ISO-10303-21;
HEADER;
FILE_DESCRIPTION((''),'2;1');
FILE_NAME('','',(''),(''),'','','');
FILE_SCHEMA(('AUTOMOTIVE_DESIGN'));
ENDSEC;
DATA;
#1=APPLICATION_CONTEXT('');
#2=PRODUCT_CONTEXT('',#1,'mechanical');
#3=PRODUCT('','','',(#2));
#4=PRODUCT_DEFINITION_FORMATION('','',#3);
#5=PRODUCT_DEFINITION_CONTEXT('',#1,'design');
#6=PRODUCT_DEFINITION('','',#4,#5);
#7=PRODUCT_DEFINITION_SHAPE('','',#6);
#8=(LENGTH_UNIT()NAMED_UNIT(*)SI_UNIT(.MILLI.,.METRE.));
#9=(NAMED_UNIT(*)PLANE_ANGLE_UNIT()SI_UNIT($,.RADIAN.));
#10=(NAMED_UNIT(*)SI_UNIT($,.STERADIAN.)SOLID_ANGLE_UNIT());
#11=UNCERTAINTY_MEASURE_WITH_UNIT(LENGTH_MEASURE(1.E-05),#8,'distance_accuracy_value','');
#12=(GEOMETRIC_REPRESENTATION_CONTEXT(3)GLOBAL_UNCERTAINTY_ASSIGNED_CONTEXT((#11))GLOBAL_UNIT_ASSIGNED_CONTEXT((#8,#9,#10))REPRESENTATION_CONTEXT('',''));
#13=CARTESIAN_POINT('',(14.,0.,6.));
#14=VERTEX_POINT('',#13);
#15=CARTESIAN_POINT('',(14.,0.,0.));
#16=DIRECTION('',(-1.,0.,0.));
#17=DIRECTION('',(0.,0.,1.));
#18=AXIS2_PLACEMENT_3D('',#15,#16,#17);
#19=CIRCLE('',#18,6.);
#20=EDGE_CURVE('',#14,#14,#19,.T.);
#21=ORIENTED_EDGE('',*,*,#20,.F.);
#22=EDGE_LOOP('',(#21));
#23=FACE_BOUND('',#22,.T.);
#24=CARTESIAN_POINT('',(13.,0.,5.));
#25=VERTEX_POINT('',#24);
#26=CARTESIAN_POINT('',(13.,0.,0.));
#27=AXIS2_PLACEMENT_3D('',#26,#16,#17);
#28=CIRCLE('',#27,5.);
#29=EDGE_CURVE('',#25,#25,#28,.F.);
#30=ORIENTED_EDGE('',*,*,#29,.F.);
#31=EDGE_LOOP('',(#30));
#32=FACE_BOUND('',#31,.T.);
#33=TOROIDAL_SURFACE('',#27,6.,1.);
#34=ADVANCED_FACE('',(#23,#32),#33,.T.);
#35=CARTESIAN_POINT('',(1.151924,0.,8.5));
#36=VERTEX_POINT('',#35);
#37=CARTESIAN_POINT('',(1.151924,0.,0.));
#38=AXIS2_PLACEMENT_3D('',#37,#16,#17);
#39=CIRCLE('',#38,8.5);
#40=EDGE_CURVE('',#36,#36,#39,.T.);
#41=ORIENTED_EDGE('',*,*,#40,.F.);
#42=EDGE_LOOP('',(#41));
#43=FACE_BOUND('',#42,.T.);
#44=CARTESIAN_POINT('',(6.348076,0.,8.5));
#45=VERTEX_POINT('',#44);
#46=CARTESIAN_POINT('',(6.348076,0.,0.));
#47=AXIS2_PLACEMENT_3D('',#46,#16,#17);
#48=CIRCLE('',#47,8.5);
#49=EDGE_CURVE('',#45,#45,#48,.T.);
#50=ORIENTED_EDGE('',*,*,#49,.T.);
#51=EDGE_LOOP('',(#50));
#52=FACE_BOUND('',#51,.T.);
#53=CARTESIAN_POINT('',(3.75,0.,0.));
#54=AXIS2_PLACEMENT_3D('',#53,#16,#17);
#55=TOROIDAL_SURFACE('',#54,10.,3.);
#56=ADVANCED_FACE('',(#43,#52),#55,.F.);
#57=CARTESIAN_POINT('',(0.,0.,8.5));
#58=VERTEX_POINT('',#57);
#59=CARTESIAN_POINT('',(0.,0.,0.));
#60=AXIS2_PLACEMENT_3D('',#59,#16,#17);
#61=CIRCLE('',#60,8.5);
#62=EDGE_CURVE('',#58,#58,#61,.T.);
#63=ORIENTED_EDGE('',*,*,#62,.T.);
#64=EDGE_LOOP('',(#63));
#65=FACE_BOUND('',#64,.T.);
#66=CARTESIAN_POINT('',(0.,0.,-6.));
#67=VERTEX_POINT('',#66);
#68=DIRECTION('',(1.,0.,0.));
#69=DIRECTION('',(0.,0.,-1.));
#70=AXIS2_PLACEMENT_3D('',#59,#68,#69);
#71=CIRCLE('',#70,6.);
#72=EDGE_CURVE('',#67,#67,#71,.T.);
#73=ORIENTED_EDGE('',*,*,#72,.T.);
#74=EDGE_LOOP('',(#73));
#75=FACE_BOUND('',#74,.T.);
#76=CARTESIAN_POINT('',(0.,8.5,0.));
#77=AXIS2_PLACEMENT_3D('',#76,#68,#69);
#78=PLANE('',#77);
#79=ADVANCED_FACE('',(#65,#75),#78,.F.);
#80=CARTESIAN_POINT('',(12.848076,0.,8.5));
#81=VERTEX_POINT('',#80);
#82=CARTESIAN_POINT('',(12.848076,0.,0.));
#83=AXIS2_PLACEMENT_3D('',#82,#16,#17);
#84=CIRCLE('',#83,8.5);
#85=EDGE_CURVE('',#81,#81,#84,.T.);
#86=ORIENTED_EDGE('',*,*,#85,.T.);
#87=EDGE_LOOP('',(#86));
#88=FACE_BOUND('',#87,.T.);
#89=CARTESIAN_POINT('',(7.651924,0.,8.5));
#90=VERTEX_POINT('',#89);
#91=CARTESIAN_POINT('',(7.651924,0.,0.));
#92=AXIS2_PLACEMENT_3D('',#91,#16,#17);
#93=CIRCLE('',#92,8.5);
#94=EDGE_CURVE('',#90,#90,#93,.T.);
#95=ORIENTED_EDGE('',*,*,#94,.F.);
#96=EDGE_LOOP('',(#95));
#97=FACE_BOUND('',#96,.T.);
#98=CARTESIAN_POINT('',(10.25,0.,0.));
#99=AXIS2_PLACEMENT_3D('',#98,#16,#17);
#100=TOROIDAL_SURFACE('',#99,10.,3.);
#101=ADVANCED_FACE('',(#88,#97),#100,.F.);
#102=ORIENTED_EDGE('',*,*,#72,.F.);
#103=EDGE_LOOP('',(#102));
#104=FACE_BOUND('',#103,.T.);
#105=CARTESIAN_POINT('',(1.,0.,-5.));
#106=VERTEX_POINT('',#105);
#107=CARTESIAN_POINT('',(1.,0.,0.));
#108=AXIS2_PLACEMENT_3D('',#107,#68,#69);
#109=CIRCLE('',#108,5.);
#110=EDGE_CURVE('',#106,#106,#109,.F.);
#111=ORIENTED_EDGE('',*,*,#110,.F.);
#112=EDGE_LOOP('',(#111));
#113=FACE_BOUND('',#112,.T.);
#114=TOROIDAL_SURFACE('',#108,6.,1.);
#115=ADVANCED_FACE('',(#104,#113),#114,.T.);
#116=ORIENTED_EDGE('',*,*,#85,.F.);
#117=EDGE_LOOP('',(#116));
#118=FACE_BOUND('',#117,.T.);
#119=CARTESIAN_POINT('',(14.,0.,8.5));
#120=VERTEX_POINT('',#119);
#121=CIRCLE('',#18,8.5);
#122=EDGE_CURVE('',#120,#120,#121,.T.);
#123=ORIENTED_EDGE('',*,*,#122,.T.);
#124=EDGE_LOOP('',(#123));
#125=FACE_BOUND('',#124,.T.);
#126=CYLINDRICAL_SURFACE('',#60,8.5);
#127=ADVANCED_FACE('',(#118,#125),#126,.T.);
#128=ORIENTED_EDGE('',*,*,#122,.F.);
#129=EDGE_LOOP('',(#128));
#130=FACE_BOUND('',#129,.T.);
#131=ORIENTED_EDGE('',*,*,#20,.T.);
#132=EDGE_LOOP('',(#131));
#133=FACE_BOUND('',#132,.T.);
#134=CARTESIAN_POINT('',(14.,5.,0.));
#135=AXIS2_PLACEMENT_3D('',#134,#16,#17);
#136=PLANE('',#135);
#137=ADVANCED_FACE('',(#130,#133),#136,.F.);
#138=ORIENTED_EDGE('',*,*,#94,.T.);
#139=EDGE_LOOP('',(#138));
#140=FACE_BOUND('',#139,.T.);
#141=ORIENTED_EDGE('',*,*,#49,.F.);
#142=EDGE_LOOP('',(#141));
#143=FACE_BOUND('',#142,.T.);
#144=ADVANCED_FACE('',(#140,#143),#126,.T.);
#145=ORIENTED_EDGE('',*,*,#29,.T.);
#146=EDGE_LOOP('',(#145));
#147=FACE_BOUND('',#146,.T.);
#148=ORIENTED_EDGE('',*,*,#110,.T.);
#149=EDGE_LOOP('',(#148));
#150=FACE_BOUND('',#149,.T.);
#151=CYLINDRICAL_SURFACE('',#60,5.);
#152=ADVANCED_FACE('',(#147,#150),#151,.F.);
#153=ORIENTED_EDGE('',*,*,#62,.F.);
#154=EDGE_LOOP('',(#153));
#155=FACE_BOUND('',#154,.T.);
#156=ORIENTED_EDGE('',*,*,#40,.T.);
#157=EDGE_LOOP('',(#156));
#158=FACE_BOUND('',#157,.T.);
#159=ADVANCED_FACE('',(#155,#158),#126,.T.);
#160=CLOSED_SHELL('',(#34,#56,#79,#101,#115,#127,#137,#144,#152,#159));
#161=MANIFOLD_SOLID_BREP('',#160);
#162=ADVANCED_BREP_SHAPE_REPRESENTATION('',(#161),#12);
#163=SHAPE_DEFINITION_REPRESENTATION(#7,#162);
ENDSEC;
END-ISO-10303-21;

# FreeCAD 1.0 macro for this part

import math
import FreeCAD as App
import Part
import Sketcher
Q = App.Units.Quantity


def edges_at(feature, points):
    """Names of the edges that pass closest to the given points."""
    edges = feature.Shape.Edges
    near = lambda p: min(range(len(edges)), key=lambda i: edges[i].distToShape(Part.Vertex(*p))[0])
    return sorted({f"Edge{near(p) + 1}" for p in points})

doc = App.newDocument("Part")
body = doc.addObject("PartDesign::Body", "Body")

# Sketch on XY plane
sketch1 = doc.addObject("Sketcher::SketchObject", "Sketch")
body.addObject(sketch1)
sketch1.AttachmentSupport = (doc.XY_Plane, [""])
sketch1.MapMode = "FlatFace"
sketch1.addGeometry(Part.LineSegment(App.Vector(0, 5, 0), App.Vector(14, 5, 0)), False)
sketch1.addGeometry(Part.LineSegment(App.Vector(14, 5, 0), App.Vector(14, 8.5, 0)), False)
sketch1.addGeometry(Part.LineSegment(App.Vector(14, 8.5, 0), App.Vector(12.848076, 8.5, 0)), False)
sketch1.addGeometry(Part.ArcOfCircle(Part.Circle(App.Vector(10.25, 10, 0), App.Vector(0, 0, 1), 3), math.radians(-150), math.radians(-30)), False)
sketch1.addGeometry(Part.LineSegment(App.Vector(7.651924, 8.5, 0), App.Vector(6.348076, 8.5, 0)), False)
sketch1.addGeometry(Part.ArcOfCircle(Part.Circle(App.Vector(3.75, 10, 0), App.Vector(0, 0, 1), 3), math.radians(-150), math.radians(-30)), False)
sketch1.addGeometry(Part.LineSegment(App.Vector(1.151924, 8.5, 0), App.Vector(0, 8.5, 0)), False)
sketch1.addGeometry(Part.LineSegment(App.Vector(0, 8.5, 0), App.Vector(0, 5, 0)), False)
sketch1.addConstraint(Sketcher.Constraint("Coincident", 0, 2, 1, 1))
sketch1.addConstraint(Sketcher.Constraint("Coincident", 1, 2, 2, 1))
sketch1.addConstraint(Sketcher.Constraint("Coincident", 2, 2, 3, 2))
sketch1.addConstraint(Sketcher.Constraint("Coincident", 3, 1, 4, 1))
sketch1.addConstraint(Sketcher.Constraint("Coincident", 4, 2, 5, 2))
sketch1.addConstraint(Sketcher.Constraint("Coincident", 5, 1, 6, 1))
sketch1.addConstraint(Sketcher.Constraint("Coincident", 6, 2, 7, 1))
sketch1.addConstraint(Sketcher.Constraint("Coincident", 7, 2, 0, 1))
sketch1.addConstraint(Sketcher.Constraint("Horizontal", 0))
sketch1.addConstraint(Sketcher.Constraint("Vertical", 1))
sketch1.addConstraint(Sketcher.Constraint("Horizontal", 2))
sketch1.addConstraint(Sketcher.Constraint("Horizontal", 4))
sketch1.addConstraint(Sketcher.Constraint("Horizontal", 6))
sketch1.addConstraint(Sketcher.Constraint("Vertical", 7))
sketch1.addConstraint(Sketcher.Constraint("Equal", 3, 5))
sketch1.addConstraint(Sketcher.Constraint("PointOnObject", 6, 2, -2))
sketch1.addConstraint(Sketcher.Constraint("Horizontal", 3, 3, 5, 3))
sketch1.addConstraint(Sketcher.Constraint("Horizontal", 2, 2, 3, 1))
sketch1.addConstraint(Sketcher.Constraint("Horizontal", 4, 2, 5, 1))
sketch1.addConstraint(Sketcher.Constraint("Equal", 2, 6))
sketch1.addConstraint(Sketcher.Constraint("Radius", 3, Q("3 mm")))
sketch1.addConstraint(Sketcher.Constraint("DistanceX", 0, 1, 0, 2, Q("14 mm")))
sketch1.addConstraint(Sketcher.Constraint("DistanceY", 1, 1, 1, 2, Q("3.5 mm")))
sketch1.addConstraint(Sketcher.Constraint("DistanceY", -1, 1, 3, 3, Q("10 mm")))
sketch1.addConstraint(Sketcher.Constraint("DistanceY", -1, 1, 0, 2, Q("5 mm")))
sketch1.addConstraint(Sketcher.Constraint("DistanceX", 5, 3, 3, 3, Q("6.5 mm")))
revolution = doc.addObject("PartDesign::Revolution", "Revolution")
body.addObject(revolution)
revolution.Profile = sketch1
revolution.ReferenceAxis = (sketch1, ["H_Axis"])
revolution.Angle = 360
doc.recompute()

fillet = doc.addObject("PartDesign::Fillet", "Fillet")
body.addObject(fillet)
fillet.Base = (revolution, edges_at(revolution, [(14, 0, -5), (0, 0, -5)]))
fillet.Radius = 1

doc.recompute()
